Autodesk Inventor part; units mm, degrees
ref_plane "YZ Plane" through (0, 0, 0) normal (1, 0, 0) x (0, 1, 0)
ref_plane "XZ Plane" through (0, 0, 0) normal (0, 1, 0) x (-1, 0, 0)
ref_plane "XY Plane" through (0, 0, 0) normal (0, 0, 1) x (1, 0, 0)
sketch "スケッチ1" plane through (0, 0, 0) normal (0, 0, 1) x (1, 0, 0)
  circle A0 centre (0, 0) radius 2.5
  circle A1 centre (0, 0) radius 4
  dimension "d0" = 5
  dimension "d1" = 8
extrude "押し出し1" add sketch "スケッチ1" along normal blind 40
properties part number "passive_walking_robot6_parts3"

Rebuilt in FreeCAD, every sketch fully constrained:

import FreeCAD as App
import Part
import Sketcher

doc = App.newDocument("Part")
body = doc.addObject("PartDesign::Body", "Body")

# Sketch on XY plane
sketch1 = body.newObject("Sketcher::SketchObject", "Sketch")
sketch1.AttachmentSupport = (doc.getObject("XY_Plane"), [""])
sketch1.MapMode = "FlatFace"
sketch1.addGeometry(Part.Circle(App.Vector(0, 0, 0), App.Vector(0, 0, 1), 4), False)
sketch1.addGeometry(Part.Circle(App.Vector(0, 0, 0), App.Vector(0, 0, 1), 2.5), False)
sketch1.addConstraint(Sketcher.Constraint("Coincident", 0, 3, -1, 1))
sketch1.addConstraint(Sketcher.Constraint("Coincident", 1, 3, -1, 1))
sketch1.addConstraint(Sketcher.Constraint("Diameter", 0, 8.0))
sketch1.addConstraint(Sketcher.Constraint("Diameter", 1, 5.0))
pad1 = body.newObject("PartDesign::Pad", "Pad")
pad1.Profile = sketch1
pad1.Length = 40

doc.recompute()
